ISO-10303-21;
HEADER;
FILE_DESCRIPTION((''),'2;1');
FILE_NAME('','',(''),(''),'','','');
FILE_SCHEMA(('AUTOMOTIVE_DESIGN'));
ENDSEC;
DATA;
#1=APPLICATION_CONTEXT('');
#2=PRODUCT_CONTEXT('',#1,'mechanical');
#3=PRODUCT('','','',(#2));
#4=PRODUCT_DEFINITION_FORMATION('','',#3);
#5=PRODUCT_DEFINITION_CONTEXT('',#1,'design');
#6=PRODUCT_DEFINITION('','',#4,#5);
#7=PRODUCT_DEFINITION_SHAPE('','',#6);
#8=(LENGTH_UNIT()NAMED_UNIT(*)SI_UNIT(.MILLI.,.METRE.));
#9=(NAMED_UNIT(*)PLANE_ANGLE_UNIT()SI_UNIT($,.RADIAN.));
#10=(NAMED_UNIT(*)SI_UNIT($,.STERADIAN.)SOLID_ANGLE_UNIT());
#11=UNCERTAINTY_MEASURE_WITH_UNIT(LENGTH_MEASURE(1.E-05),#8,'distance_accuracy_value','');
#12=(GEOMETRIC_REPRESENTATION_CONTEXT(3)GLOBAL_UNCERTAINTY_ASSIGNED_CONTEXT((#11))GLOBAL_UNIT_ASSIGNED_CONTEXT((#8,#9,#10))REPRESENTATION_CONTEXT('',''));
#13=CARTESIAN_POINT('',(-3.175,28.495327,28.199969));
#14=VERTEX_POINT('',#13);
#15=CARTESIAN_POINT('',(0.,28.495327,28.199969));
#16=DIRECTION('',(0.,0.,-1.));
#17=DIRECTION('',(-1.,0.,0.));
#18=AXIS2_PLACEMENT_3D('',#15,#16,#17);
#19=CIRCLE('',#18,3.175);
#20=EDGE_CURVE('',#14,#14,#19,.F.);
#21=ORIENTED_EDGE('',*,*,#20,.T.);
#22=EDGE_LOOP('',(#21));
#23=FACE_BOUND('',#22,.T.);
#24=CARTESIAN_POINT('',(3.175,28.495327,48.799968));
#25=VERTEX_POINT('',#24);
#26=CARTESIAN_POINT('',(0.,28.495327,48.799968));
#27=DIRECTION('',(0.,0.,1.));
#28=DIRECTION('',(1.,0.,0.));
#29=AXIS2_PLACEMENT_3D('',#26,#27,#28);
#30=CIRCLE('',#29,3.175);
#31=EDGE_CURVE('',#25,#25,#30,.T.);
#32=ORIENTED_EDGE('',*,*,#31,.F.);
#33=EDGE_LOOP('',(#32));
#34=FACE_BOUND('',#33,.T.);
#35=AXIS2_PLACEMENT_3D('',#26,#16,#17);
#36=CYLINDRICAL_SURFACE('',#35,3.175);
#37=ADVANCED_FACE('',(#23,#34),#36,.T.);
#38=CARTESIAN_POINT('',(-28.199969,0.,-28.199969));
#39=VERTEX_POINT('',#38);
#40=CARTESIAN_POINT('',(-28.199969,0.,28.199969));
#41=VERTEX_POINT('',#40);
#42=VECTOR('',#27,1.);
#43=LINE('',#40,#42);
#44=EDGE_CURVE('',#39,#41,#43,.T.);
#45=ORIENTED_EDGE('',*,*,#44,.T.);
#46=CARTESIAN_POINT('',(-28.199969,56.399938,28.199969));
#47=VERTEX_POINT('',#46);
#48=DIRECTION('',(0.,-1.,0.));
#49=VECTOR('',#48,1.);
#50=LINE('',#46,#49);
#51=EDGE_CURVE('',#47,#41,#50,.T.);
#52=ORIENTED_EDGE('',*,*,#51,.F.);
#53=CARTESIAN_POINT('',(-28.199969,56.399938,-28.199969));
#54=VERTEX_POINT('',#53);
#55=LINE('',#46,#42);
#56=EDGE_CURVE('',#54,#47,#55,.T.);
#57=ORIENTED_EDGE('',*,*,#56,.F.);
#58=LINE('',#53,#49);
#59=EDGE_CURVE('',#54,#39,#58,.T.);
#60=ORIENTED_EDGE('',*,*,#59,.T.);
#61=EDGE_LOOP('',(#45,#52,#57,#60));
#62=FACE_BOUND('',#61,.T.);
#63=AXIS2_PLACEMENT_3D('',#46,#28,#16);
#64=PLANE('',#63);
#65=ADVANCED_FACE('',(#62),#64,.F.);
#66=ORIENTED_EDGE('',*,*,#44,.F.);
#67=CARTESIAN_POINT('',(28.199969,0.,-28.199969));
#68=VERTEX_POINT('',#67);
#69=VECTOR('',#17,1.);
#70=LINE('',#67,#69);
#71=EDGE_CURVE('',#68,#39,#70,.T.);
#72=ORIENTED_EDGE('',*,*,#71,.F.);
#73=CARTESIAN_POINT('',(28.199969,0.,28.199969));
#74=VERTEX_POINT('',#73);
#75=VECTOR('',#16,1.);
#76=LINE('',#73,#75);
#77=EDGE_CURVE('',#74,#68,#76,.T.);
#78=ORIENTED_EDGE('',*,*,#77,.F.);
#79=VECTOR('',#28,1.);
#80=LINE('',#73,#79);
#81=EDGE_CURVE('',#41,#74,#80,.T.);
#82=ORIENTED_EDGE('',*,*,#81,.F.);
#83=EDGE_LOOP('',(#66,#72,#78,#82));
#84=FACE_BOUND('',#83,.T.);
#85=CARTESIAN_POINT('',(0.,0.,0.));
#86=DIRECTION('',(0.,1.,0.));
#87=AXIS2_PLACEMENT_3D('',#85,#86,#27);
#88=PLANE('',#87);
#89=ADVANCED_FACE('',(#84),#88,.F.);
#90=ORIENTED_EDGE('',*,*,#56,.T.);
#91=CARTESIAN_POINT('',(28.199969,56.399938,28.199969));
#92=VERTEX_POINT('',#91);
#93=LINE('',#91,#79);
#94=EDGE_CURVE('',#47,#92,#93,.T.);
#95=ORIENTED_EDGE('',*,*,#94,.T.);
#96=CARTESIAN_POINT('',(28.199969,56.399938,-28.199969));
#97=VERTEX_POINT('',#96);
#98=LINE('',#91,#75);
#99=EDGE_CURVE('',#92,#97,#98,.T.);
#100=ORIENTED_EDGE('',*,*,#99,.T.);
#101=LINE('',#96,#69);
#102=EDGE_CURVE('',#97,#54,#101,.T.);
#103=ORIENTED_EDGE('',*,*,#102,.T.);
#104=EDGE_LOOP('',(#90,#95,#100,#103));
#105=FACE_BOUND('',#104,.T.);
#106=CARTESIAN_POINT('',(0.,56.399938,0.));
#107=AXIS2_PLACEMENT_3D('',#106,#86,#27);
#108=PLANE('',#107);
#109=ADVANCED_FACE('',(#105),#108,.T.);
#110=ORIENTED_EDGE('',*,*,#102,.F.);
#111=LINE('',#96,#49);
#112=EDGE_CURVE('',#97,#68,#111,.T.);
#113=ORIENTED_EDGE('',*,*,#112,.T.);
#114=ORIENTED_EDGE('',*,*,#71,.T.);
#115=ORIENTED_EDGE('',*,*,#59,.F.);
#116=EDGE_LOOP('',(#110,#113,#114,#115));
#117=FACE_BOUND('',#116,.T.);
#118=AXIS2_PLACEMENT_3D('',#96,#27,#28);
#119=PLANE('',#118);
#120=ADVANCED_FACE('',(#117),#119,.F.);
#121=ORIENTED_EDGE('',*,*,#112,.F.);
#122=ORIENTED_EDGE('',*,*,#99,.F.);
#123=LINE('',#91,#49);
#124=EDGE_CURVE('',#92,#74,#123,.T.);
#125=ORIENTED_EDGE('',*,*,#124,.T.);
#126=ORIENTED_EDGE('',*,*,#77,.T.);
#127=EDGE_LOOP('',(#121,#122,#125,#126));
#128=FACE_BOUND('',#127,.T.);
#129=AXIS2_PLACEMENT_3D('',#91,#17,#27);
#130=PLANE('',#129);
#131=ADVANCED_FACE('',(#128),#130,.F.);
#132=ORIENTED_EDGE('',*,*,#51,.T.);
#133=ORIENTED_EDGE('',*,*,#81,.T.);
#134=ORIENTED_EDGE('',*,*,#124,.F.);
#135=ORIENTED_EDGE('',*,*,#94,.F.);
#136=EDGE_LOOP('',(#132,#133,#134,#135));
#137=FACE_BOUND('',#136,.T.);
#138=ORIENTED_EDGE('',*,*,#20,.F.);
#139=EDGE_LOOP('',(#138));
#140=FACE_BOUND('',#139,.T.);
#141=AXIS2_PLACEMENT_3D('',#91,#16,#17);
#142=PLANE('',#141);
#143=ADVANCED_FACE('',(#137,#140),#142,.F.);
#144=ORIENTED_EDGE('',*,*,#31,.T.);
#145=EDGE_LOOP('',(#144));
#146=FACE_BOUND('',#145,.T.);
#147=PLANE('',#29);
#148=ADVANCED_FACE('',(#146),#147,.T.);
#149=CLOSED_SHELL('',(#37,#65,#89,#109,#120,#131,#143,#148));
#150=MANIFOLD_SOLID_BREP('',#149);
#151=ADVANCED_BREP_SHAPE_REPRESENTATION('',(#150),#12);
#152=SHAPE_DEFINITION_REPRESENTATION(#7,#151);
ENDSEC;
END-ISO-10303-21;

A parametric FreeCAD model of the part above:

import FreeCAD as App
import Part
import Sketcher
Q = App.Units.Quantity

doc = App.newDocument("Part")
params = doc.addObject("Spreadsheet::Sheet", "Params")
for row, (alias, value) in enumerate([
    ("pad1_length", "56.399938 mm"),
    ("sketch2_diameter", "6.35 mm"),
    ("pad2_length", "20.599999 mm"),
], start=1):
    params.set(f"A{row}", alias)
    params.set(f"B{row}", "=" + value)
    params.setAlias(f"B{row}", alias)

body = doc.addObject("PartDesign::Body", "Body")

sketch1 = doc.addObject("Sketcher::SketchObject", "Sketch")
body.addObject(sketch1)
sketch1.AttachmentSupport = (doc.XZ_Plane, [""])
sketch1.MapMode = "FlatFace"
sketch1.addGeometry(Part.LineSegment(App.Vector(-28, -28, 0), App.Vector(-28, 28, 0)), False)
sketch1.addGeometry(Part.LineSegment(App.Vector(-28, 28, 0), App.Vector(28, 28, 0)), False)
sketch1.addGeometry(Part.LineSegment(App.Vector(28, 28, 0), App.Vector(28, -28, 0)), False)
sketch1.addGeometry(Part.LineSegment(App.Vector(28, -28, 0), App.Vector(-28, -28, 0)), False)
sketch1.addConstraint(Sketcher.Constraint("Coincident", 0, 2, 1, 1))
sketch1.addConstraint(Sketcher.Constraint("Coincident", 1, 2, 2, 1))
sketch1.addConstraint(Sketcher.Constraint("Coincident", 2, 2, 3, 1))
sketch1.addConstraint(Sketcher.Constraint("Coincident", 3, 2, 0, 1))
sketch1.addConstraint(Sketcher.Constraint("Vertical", 0))
sketch1.addConstraint(Sketcher.Constraint("Horizontal", 1))
sketch1.addConstraint(Sketcher.Constraint("Vertical", 2))
sketch1.addConstraint(Sketcher.Constraint("Horizontal", 3))
sketch1.addConstraint(Sketcher.Constraint("Symmetric", 0, 2, 2, 2, -1, 1))
sketch1.addConstraint(Sketcher.Constraint("Equal", 3, 0))
sketch1.addConstraint(Sketcher.Constraint("DistanceX", 1, 1, 1, 2, Q("56.399938 mm")))
pad1 = doc.addObject("PartDesign::Pad", "Pad")
body.addObject(pad1)
pad1.Profile = sketch1
pad1.setExpression("Length", "Params.pad1_length")
pad1.Reversed = True

sketch2 = doc.addObject("Sketcher::SketchObject", "Sketch001")
body.addObject(sketch2)
sketch2.AttachmentSupport = (doc.XY_Plane, [""])
sketch2.MapMode = "FlatFace"
sketch2.AttachmentOffset = App.Placement(App.Vector(0, 0, 28.199969), App.Rotation())
sketch2.addGeometry(Part.Circle(App.Vector(0, 28.5, 0), App.Vector(0, 0, 1), 3.2), False)
sketch2.addConstraint(Sketcher.Constraint("PointOnObject", 0, 3, -2))
sketch2.addConstraint(Sketcher.Constraint("Diameter", 0, Q("6.35 mm")))
sketch2.addConstraint(Sketcher.Constraint("DistanceY", -1, 1, 0, 3, Q("28.495327 mm")))
sketch2.setExpression("Constraints[1]", "Params.sketch2_diameter")
pad2 = doc.addObject("PartDesign::Pad", "Pad001")
body.addObject(pad2)
pad2.Profile = sketch2
pad2.setExpression("Length", "Params.pad2_length")

doc.recompute()
